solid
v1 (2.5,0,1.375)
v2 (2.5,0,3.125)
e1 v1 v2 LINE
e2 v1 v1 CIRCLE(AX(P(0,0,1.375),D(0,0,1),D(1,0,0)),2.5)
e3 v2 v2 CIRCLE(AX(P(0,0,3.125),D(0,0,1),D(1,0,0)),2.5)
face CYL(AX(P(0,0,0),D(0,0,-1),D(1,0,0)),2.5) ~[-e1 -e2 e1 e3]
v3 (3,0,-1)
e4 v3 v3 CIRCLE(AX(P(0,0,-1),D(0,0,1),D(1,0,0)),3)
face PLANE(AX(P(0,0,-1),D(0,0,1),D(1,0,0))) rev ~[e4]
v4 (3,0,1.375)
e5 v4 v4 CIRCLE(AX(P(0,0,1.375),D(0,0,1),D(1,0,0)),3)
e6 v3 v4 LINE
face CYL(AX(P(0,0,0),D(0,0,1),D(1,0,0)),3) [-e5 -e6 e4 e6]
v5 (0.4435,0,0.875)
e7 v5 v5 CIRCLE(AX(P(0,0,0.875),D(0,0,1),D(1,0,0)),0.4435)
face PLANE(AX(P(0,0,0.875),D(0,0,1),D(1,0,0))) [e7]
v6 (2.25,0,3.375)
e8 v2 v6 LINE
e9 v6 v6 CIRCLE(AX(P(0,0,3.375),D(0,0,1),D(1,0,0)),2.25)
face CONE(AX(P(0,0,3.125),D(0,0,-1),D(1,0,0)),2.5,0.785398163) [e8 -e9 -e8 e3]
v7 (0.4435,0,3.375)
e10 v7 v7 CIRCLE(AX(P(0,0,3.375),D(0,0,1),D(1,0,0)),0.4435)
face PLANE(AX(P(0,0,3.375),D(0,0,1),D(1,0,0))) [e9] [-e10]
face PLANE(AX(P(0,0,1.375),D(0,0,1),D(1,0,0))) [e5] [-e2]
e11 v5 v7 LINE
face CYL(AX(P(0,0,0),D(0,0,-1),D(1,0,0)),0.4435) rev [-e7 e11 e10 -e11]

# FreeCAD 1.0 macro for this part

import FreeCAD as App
import Part
import Sketcher

V = App.Vector
Q = App.Units.Quantity


def edges_at(feature, points):
    """Names of the edges that pass closest to the given points."""
    edges = feature.Shape.Edges
    near = lambda p: min(range(len(edges)), key=lambda i: edges[i].distToShape(Part.Vertex(*p))[0])
    return sorted({f"Edge{near(p) + 1}" for p in points})

doc = App.newDocument("Part")
params = doc.addObject("Spreadsheet::Sheet", "Params")
for row, (alias, value) in enumerate([
    ("sketch1_diameter", "5 mm"),
    ("pad1_length", "3.375 mm"),
    ("sketch2_diameter", "6 mm"),
    ("sketch2_diameter2", "5 mm"),
    ("pad2_length", "1.375 mm"),
    ("pad3_length", "0.875 mm"),
    ("chamfer_size", "0.25 mm"),
    ("sketch4_diameter", "6 mm"),
    ("pad4_length", "1 mm"),
    ("groove_angle", "360 deg"),
], start=1):
    params.set(f"A{row}", alias)
    params.set(f"B{row}", "=" + value)
    params.setAlias(f"B{row}", alias)

body = doc.addObject("PartDesign::Body", "Body")

# Sketch on XY plane
sketch1 = body.newObject("Sketcher::SketchObject", "Sketch")
sketch1.AttachmentSupport = (doc.getObject("XY_Plane"), [""])
sketch1.MapMode = "FlatFace"
sketch1.addGeometry(Part.Circle(V(0, 0, 0), V(0, 0, 1), 2.5), False)
sketch1.addGeometry(Part.Circle(V(0, 0, 0), V(0, 0, 1), 0.44), False)
sketch1.addConstraint(Sketcher.Constraint("Coincident", 0, 3, -1, 1))
sketch1.addConstraint(Sketcher.Constraint("Coincident", 1, 3, -1, 1))
sketch1.addConstraint(Sketcher.Constraint("Diameter", 0, Q("5 mm")))
sketch1.addConstraint(Sketcher.Constraint("Diameter", 1, Q("0.887 mm")))
sketch1.setExpression("Constraints[2]", "Params.sketch1_diameter")
pad1 = body.newObject("PartDesign::Pad", "Pad")
pad1.Profile = sketch1
pad1.setExpression("Length", "Params.pad1_length")

# Sketch on XY plane
sketch2 = body.newObject("Sketcher::SketchObject", "Sketch001")
sketch2.AttachmentSupport = (doc.getObject("XY_Plane"), [""])
sketch2.MapMode = "FlatFace"
sketch2.addGeometry(Part.Circle(V(0, 0, 0), V(0, 0, 1), 3), False)
sketch2.addGeometry(Part.Circle(V(0, 0, 0), V(0, 0, 1), 2.5), False)
sketch2.addConstraint(Sketcher.Constraint("Coincident", 0, 3, -1, 1))
sketch2.addConstraint(Sketcher.Constraint("Coincident", 1, 3, -1, 1))
sketch2.addConstraint(Sketcher.Constraint("Diameter", 0, Q("6 mm")))
sketch2.addConstraint(Sketcher.Constraint("Diameter", 1, Q("5 mm")))
sketch2.setExpression("Constraints[2]", "Params.sketch2_diameter")
sketch2.setExpression("Constraints[3]", "Params.sketch2_diameter2")
pad2 = body.newObject("PartDesign::Pad", "Pad001")
pad2.Profile = sketch2
pad2.setExpression("Length", "Params.pad2_length")

# Sketch on XY plane
sketch3 = body.newObject("Sketcher::SketchObject", "Sketch002")
sketch3.AttachmentSupport = (doc.getObject("XY_Plane"), [""])
sketch3.MapMode = "FlatFace"
sketch3.addGeometry(Part.Circle(V(0, 0, 0), V(0, 0, 1), 0.44), False)
sketch3.addConstraint(Sketcher.Constraint("Coincident", 0, 3, -1, 1))
sketch3.addConstraint(Sketcher.Constraint("Diameter", 0, Q("0.887 mm")))
pad3 = body.newObject("PartDesign::Pad", "Pad002")
pad3.Profile = sketch3
pad3.setExpression("Length", "Params.pad3_length")
doc.recompute()

chamfer = body.newObject("PartDesign::Chamfer", "Chamfer")
chamfer.Base = (pad3, edges_at(pad3, [(-2.5, 0, 3.375)]))
chamfer.setExpression("Size", "Params.chamfer_size")

# Sketch on XY plane
sketch4 = body.newObject("Sketcher::SketchObject", "Sketch003")
sketch4.AttachmentSupport = (doc.getObject("XY_Plane"), [""])
sketch4.MapMode = "FlatFace"
sketch4.addGeometry(Part.Circle(V(0, 0, 0), V(0, 0, 1), 3), False)
sketch4.addConstraint(Sketcher.Constraint("Coincident", 0, 3, -1, 1))
sketch4.addConstraint(Sketcher.Constraint("Diameter", 0, Q("6 mm")))
sketch4.setExpression("Constraints[1]", "Params.sketch4_diameter")
pad4 = body.newObject("PartDesign::Pad", "Pad003")
pad4.Profile = sketch4
pad4.setExpression("Length", "Params.pad4_length")
pad4.Reversed = True

# Sketch on YZ plane
sketch5 = body.newObject("Sketcher::SketchObject", "Sketch004")
sketch5.AttachmentSupport = (doc.getObject("YZ_Plane"), [""])
sketch5.MapMode = "FlatFace"
sketch5.addGeometry(Part.LineSegment(V(-6.7, 1, 0), V(-6.7, 0, 0)), False)
sketch5.addGeometry(Part.LineSegment(V(-6.7, 0, 0), V(-3.1, 1, 0)), False)
sketch5.addGeometry(Part.LineSegment(V(-3.1, 1, 0), V(-6.7, 1, 0)), False)
sketch5.addConstraint(Sketcher.Constraint("Coincident", 0, 2, 1, 1))
sketch5.addConstraint(Sketcher.Constraint("Coincident", 1, 2, 2, 1))
sketch5.addConstraint(Sketcher.Constraint("Coincident", 2, 2, 0, 1))
sketch5.addConstraint(Sketcher.Constraint("Vertical", 0))
sketch5.addConstraint(Sketcher.Constraint("Horizontal", 2))
sketch5.addConstraint(Sketcher.Constraint("PointOnObject", 0, 2, -1))
sketch5.addConstraint(Sketcher.Constraint("DistanceX", 2, 2, 2, 1, Q("3.577531 mm")))
sketch5.addConstraint(Sketcher.Constraint("DistanceY", 0, 2, 0, 1, Q("0.961968 mm")))
sketch5.addConstraint(Sketcher.Constraint("DistanceX", 0, 2, -1, 1, Q("6.694397 mm")))
groove = body.newObject("PartDesign::Groove", "Groove")
groove.Profile = sketch5
groove.ReferenceAxis = (sketch5, ["V_Axis"])
groove.setExpression("Angle", "Params.groove_angle")

doc.recompute()
